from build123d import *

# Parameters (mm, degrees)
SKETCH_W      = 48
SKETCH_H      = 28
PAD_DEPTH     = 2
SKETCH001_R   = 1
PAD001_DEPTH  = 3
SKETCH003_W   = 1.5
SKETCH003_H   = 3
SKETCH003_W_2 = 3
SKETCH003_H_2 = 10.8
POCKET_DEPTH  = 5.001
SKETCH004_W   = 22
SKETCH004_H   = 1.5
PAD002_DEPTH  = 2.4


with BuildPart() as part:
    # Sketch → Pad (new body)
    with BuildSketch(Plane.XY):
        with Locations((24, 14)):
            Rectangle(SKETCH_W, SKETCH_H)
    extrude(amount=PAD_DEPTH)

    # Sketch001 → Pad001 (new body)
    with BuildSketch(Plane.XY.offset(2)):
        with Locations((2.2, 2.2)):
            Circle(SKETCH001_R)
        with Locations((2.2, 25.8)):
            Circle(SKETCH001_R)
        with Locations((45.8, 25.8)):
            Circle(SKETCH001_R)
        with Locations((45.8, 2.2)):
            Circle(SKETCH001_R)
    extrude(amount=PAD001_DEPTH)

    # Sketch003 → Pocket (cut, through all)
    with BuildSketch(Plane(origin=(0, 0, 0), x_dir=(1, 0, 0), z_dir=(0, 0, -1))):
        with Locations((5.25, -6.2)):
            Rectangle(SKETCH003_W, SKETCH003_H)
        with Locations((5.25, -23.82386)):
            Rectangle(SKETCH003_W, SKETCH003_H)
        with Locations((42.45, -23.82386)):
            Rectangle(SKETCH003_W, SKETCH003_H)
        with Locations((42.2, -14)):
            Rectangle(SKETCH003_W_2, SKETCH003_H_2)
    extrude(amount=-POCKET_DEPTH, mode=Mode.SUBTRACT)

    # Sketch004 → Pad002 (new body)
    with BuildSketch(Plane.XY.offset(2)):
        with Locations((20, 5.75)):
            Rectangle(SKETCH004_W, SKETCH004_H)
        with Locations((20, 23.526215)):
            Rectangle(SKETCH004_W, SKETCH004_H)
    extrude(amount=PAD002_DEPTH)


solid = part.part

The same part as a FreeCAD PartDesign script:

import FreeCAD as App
import Part
import Sketcher
Q = App.Units.Quantity

doc = App.newDocument("Part")
body = doc.addObject("PartDesign::Body", "Body")

# Sketch on XY plane
sketch1 = doc.addObject("Sketcher::SketchObject", "Sketch")
body.addObject(sketch1)
sketch1.AttachmentSupport = (doc.XY_Plane, [""])
sketch1.MapMode = "FlatFace"
sketch1.addGeometry(Part.LineSegment(App.Vector(0, 28, 0), App.Vector(0, 0, 0)), False)
sketch1.addGeometry(Part.LineSegment(App.Vector(0, 0, 0), App.Vector(48, 0, 0)), False)
sketch1.addGeometry(Part.LineSegment(App.Vector(48, 0, 0), App.Vector(48, 28, 0)), False)
sketch1.addGeometry(Part.LineSegment(App.Vector(48, 28, 0), App.Vector(0, 28, 0)), False)
sketch1.addConstraint(Sketcher.Constraint("Coincident", 0, 2, 1, 1))
sketch1.addConstraint(Sketcher.Constraint("Coincident", 1, 2, 2, 1))
sketch1.addConstraint(Sketcher.Constraint("Coincident", 2, 2, 3, 1))
sketch1.addConstraint(Sketcher.Constraint("Coincident", 3, 2, 0, 1))
sketch1.addConstraint(Sketcher.Constraint("Vertical", 0))
sketch1.addConstraint(Sketcher.Constraint("Horizontal", 1))
sketch1.addConstraint(Sketcher.Constraint("Vertical", 2))
sketch1.addConstraint(Sketcher.Constraint("Horizontal", 3))
sketch1.addConstraint(Sketcher.Constraint("Coincident", 0, 2, -1, 1))
sketch1.addConstraint(Sketcher.Constraint("DistanceX", 1, 1, 1, 2, Q("48 mm")))
sketch1.addConstraint(Sketcher.Constraint("DistanceY", 0, 2, 0, 1, Q("28 mm")))
pad1 = doc.addObject("PartDesign::Pad", "Pad")
body.addObject(pad1)
pad1.Profile = sketch1
pad1.Length = 2

# Sketch on XY plane
sketch2 = doc.addObject("Sketcher::SketchObject", "Sketch001")
body.addObject(sketch2)
sketch2.AttachmentSupport = (doc.XY_Plane, [""])
sketch2.MapMode = "FlatFace"
sketch2.AttachmentOffset = App.Placement(App.Vector(0, 0, 2), App.Rotation())
sketch2.addGeometry(Part.Circle(App.Vector(2.2, 2.2, 0), App.Vector(0, 0, 1), 1), False)
sketch2.addGeometry(Part.Circle(App.Vector(2.2, 25.8, 0), App.Vector(0, 0, 1), 1), False)
sketch2.addGeometry(Part.Circle(App.Vector(45.8, 25.8, 0), App.Vector(0, 0, 1), 1), False)
sketch2.addGeometry(Part.Circle(App.Vector(45.8, 2.2, 0), App.Vector(0, 0, 1), 1), False)
sketch2.addConstraint(Sketcher.Constraint("Equal", 0, 1))
sketch2.addConstraint(Sketcher.Constraint("Equal", 1, 2))
sketch2.addConstraint(Sketcher.Constraint("Equal", 2, 3))
sketch2.addConstraint(Sketcher.Constraint("Horizontal", 1, 3, 2, 3))
sketch2.addConstraint(Sketcher.Constraint("Horizontal", 0, 3, 3, 3))
sketch2.addConstraint(Sketcher.Constraint("Vertical", 0, 3, 1, 3))
sketch2.addConstraint(Sketcher.Constraint("Vertical", 2, 3, 3, 3))
sketch2.addConstraint(Sketcher.Constraint("Diameter", 0, Q("2 mm")))
sketch2.addConstraint(Sketcher.Constraint("DistanceX", -1, 1, 0, 3, Q("2.2 mm")))
sketch2.addConstraint(Sketcher.Constraint("DistanceY", -1, 1, 0, 3, Q("2.2 mm")))
sketch2.addConstraint(Sketcher.Constraint("DistanceY", -1, 1, 1, 3, Q("25.8 mm")))
sketch2.addConstraint(Sketcher.Constraint("DistanceX", -1, 1, 2, 3, Q("45.8 mm")))
pad2 = doc.addObject("PartDesign::Pad", "Pad001")
body.addObject(pad2)
pad2.Profile = sketch2
pad2.Length = 3

# Sketch on XY plane
sketch3 = doc.addObject("Sketcher::SketchObject", "Sketch002")
body.addObject(sketch3)
sketch3.AttachmentSupport = (doc.XY_Plane, [""])
sketch3.MapMode = "FlatFace"
sketch3.addGeometry(Part.LineSegment(App.Vector(4.5, 4.7, 0), App.Vector(4.5, 7.7, 0)), False)
sketch3.addGeometry(Part.LineSegment(App.Vector(4.5, 7.7, 0), App.Vector(6, 7.7, 0)), False)
sketch3.addGeometry(Part.LineSegment(App.Vector(6, 7.7, 0), App.Vector(6, 4.7, 0)), False)
sketch3.addGeometry(Part.LineSegment(App.Vector(6, 4.7, 0), App.Vector(4.5, 4.7, 0)), False)
sketch3.addGeometry(Part.LineSegment(App.Vector(4.5, 22.3, 0), App.Vector(4.5, 25.3, 0)), False)
sketch3.addGeometry(Part.LineSegment(App.Vector(4.5, 25.3, 0), App.Vector(6, 25.3, 0)), False)
sketch3.addGeometry(Part.LineSegment(App.Vector(6, 25.3, 0), App.Vector(6, 22.3, 0)), False)
sketch3.addGeometry(Part.LineSegment(App.Vector(6, 22.3, 0), App.Vector(4.5, 22.3, 0)), False)
sketch3.addGeometry(Part.LineSegment(App.Vector(41.7, 22.3, 0), App.Vector(41.7, 25.3, 0)), False)
sketch3.addGeometry(Part.LineSegment(App.Vector(41.7, 25.3, 0), App.Vector(43.2, 25.3, 0)), False)
sketch3.addGeometry(Part.LineSegment(App.Vector(43.2, 25.3, 0), App.Vector(43.2, 22.3, 0)), False)
sketch3.addGeometry(Part.LineSegment(App.Vector(43.2, 22.3, 0), App.Vector(41.7, 22.3, 0)), False)
sketch3.addGeometry(Part.LineSegment(App.Vector(40.7, 8.6, 0), App.Vector(40.7, 19.4, 0)), False)
sketch3.addGeometry(Part.LineSegment(App.Vector(40.7, 19.4, 0), App.Vector(43.7, 19.4, 0)), False)
sketch3.addGeometry(Part.LineSegment(App.Vector(43.7, 19.4, 0), App.Vector(43.7, 8.6, 0)), False)
sketch3.addGeometry(Part.LineSegment(App.Vector(43.7, 8.6, 0), App.Vector(40.7, 8.6, 0)), False)
sketch3.addConstraint(Sketcher.Constraint("Coincident", 0, 2, 1, 1))
sketch3.addConstraint(Sketcher.Constraint("Coincident", 1, 2, 2, 1))
sketch3.addConstraint(Sketcher.Constraint("Coincident", 2, 2, 3, 1))
sketch3.addConstraint(Sketcher.Constraint("Coincident", 3, 2, 0, 1))
sketch3.addConstraint(Sketcher.Constraint("Coincident", 4, 2, 5, 1))
sketch3.addConstraint(Sketcher.Constraint("Coincident", 5, 2, 6, 1))
sketch3.addConstraint(Sketcher.Constraint("Coincident", 6, 2, 7, 1))
sketch3.addConstraint(Sketcher.Constraint("Coincident", 7, 2, 4, 1))
sketch3.addConstraint(Sketcher.Constraint("Coincident", 8, 2, 9, 1))
sketch3.addConstraint(Sketcher.Constraint("Coincident", 9, 2, 10, 1))
sketch3.addConstraint(Sketcher.Constraint("Coincident", 10, 2, 11, 1))
sketch3.addConstraint(Sketcher.Constraint("Coincident", 11, 2, 8, 1))
sketch3.addConstraint(Sketcher.Constraint("Coincident", 12, 2, 13, 1))
sketch3.addConstraint(Sketcher.Constraint("Coincident", 13, 2, 14, 1))
sketch3.addConstraint(Sketcher.Constraint("Coincident", 14, 2, 15, 1))
sketch3.addConstraint(Sketcher.Constraint("Coincident", 15, 2, 12, 1))
sketch3.addConstraint(Sketcher.Constraint("Vertical", 0))
sketch3.addConstraint(Sketcher.Constraint("Horizontal", 1))
sketch3.addConstraint(Sketcher.Constraint("Vertical", 2))
sketch3.addConstraint(Sketcher.Constraint("Horizontal", 3))
sketch3.addConstraint(Sketcher.Constraint("Vertical", 4))
sketch3.addConstraint(Sketcher.Constraint("Horizontal", 5))
sketch3.addConstraint(Sketcher.Constraint("Vertical", 6))
sketch3.addConstraint(Sketcher.Constraint("Horizontal", 7))
sketch3.addConstraint(Sketcher.Constraint("Vertical", 8))
sketch3.addConstraint(Sketcher.Constraint("Horizontal", 9))
sketch3.addConstraint(Sketcher.Constraint("Vertical", 10))
sketch3.addConstraint(Sketcher.Constraint("Horizontal", 11))
sketch3.addConstraint(Sketcher.Constraint("Vertical", 12))
sketch3.addConstraint(Sketcher.Constraint("Horizontal", 13))
sketch3.addConstraint(Sketcher.Constraint("Vertical", 14))
sketch3.addConstraint(Sketcher.Constraint("Horizontal", 15))
sketch3.addConstraint(Sketcher.Constraint("Horizontal", 5, 2, 8, 2))
sketch3.addConstraint(Sketcher.Constraint("Horizontal", 7, 2, 10, 2))
sketch3.addConstraint(Sketcher.Constraint("Vertical", 3, 2, 4, 2))
sketch3.addConstraint(Sketcher.Constraint("Vertical", 2, 2, 5, 2))
sketch3.addConstraint(Sketcher.Constraint("Equal", 7, 9))
sketch3.addConstraint(Sketcher.Constraint("Equal", 15, 0))
sketch3.addConstraint(Sketcher.Constraint("Equal", 2, 4))
sketch3.addConstraint(Sketcher.Constraint("DistanceX", 13, 1, 13, 2, Q("3 mm")))
sketch3.addConstraint(Sketcher.Constraint("DistanceX", 1, 1, 1, 2, Q("1.5 mm")))
sketch3.addConstraint(Sketcher.Constraint("DistanceY", 12, 1, 12, 2, Q("10.8 mm")))
sketch3.addConstraint(Sketcher.Constraint("DistanceX", -1, 1, 1, 2, Q("6 mm")))
sketch3.addConstraint(Sketcher.Constraint("DistanceX", 12, 2, 11, 2, Q("1 mm")))
sketch3.addConstraint(Sketcher.Constraint("DistanceY", -1, 1, 0, 2, Q("7.7 mm")))
sketch3.addConstraint(Sketcher.Constraint("DistanceX", -1, 1, 8, 2, Q("41.7 mm")))
sketch3.addConstraint(Sketcher.Constraint("DistanceY", -1, 1, 12, 2, Q("19.4 mm")))
sketch3.addConstraint(Sketcher.Constraint("DistanceY", -1, 1, 4, 2, Q("25.32386 mm")))
pocket1 = doc.addObject("PartDesign::Pocket", "Pocket")
body.addObject(pocket1)
pocket1.Profile = sketch3
pocket1.Type = "ThroughAll"
pocket1.Reversed = True

# Sketch on XY plane
sketch4 = doc.addObject("Sketcher::SketchObject", "Sketch003")
body.addObject(sketch4)
sketch4.AttachmentSupport = (doc.XY_Plane, [""])
sketch4.MapMode = "FlatFace"
sketch4.AttachmentOffset = App.Placement(App.Vector(0, 0, 2), App.Rotation())
sketch4.addGeometry(Part.LineSegment(App.Vector(9, 6.5, 0), App.Vector(9, 5, 0)), False)
sketch4.addGeometry(Part.LineSegment(App.Vector(9, 5, 0), App.Vector(31, 5, 0)), False)
sketch4.addGeometry(Part.LineSegment(App.Vector(31, 5, 0), App.Vector(31, 6.5, 0)), False)
sketch4.addGeometry(Part.LineSegment(App.Vector(31, 6.5, 0), App.Vector(9, 6.5, 0)), False)
sketch4.addGeometry(Part.LineSegment(App.Vector(9, 24.3, 0), App.Vector(9, 22.8, 0)), False)
sketch4.addGeometry(Part.LineSegment(App.Vector(9, 22.8, 0), App.Vector(31, 22.8, 0)), False)
sketch4.addGeometry(Part.LineSegment(App.Vector(31, 22.8, 0), App.Vector(31, 24.3, 0)), False)
sketch4.addGeometry(Part.LineSegment(App.Vector(31, 24.3, 0), App.Vector(9, 24.3, 0)), False)
sketch4.addConstraint(Sketcher.Constraint("Coincident", 0, 2, 1, 1))
sketch4.addConstraint(Sketcher.Constraint("Coincident", 1, 2, 2, 1))
sketch4.addConstraint(Sketcher.Constraint("Coincident", 2, 2, 3, 1))
sketch4.addConstraint(Sketcher.Constraint("Coincident", 3, 2, 0, 1))
sketch4.addConstraint(Sketcher.Constraint("Coincident", 4, 2, 5, 1))
sketch4.addConstraint(Sketcher.Constraint("Coincident", 5, 2, 6, 1))
sketch4.addConstraint(Sketcher.Constraint("Coincident", 6, 2, 7, 1))
sketch4.addConstraint(Sketcher.Constraint("Coincident", 7, 2, 4, 1))
sketch4.addConstraint(Sketcher.Constraint("Vertical", 0))
sketch4.addConstraint(Sketcher.Constraint("Horizontal", 1))
sketch4.addConstraint(Sketcher.Constraint("Vertical", 2))
sketch4.addConstraint(Sketcher.Constraint("Horizontal", 3))
sketch4.addConstraint(Sketcher.Constraint("Vertical", 4))
sketch4.addConstraint(Sketcher.Constraint("Horizontal", 5))
sketch4.addConstraint(Sketcher.Constraint("Vertical", 6))
sketch4.addConstraint(Sketcher.Constraint("Horizontal", 7))
sketch4.addConstraint(Sketcher.Constraint("Vertical", 3, 2, 4, 2))
sketch4.addConstraint(Sketcher.Constraint("Vertical", 2, 2, 5, 2))
sketch4.addConstraint(Sketcher.Constraint("Equal", 2, 4))
sketch4.addConstraint(Sketcher.Constraint("DistanceX", 1, 1, 1, 2, Q("22 mm")))
sketch4.addConstraint(Sketcher.Constraint("DistanceY", 0, 2, 0, 1, Q("1.5 mm")))
sketch4.addConstraint(Sketcher.Constraint("DistanceX", -1, 1, 0, 2, Q("9 mm")))
sketch4.addConstraint(Sketcher.Constraint("DistanceY", -1, 1, 0, 2, Q("5 mm")))
sketch4.addConstraint(Sketcher.Constraint("DistanceY", -1, 1, 4, 2, Q("22.776215 mm")))
pad3 = doc.addObject("PartDesign::Pad", "Pad002")
body.addObject(pad3)
pad3.Profile = sketch4
pad3.Length = 2.4

doc.recompute()
